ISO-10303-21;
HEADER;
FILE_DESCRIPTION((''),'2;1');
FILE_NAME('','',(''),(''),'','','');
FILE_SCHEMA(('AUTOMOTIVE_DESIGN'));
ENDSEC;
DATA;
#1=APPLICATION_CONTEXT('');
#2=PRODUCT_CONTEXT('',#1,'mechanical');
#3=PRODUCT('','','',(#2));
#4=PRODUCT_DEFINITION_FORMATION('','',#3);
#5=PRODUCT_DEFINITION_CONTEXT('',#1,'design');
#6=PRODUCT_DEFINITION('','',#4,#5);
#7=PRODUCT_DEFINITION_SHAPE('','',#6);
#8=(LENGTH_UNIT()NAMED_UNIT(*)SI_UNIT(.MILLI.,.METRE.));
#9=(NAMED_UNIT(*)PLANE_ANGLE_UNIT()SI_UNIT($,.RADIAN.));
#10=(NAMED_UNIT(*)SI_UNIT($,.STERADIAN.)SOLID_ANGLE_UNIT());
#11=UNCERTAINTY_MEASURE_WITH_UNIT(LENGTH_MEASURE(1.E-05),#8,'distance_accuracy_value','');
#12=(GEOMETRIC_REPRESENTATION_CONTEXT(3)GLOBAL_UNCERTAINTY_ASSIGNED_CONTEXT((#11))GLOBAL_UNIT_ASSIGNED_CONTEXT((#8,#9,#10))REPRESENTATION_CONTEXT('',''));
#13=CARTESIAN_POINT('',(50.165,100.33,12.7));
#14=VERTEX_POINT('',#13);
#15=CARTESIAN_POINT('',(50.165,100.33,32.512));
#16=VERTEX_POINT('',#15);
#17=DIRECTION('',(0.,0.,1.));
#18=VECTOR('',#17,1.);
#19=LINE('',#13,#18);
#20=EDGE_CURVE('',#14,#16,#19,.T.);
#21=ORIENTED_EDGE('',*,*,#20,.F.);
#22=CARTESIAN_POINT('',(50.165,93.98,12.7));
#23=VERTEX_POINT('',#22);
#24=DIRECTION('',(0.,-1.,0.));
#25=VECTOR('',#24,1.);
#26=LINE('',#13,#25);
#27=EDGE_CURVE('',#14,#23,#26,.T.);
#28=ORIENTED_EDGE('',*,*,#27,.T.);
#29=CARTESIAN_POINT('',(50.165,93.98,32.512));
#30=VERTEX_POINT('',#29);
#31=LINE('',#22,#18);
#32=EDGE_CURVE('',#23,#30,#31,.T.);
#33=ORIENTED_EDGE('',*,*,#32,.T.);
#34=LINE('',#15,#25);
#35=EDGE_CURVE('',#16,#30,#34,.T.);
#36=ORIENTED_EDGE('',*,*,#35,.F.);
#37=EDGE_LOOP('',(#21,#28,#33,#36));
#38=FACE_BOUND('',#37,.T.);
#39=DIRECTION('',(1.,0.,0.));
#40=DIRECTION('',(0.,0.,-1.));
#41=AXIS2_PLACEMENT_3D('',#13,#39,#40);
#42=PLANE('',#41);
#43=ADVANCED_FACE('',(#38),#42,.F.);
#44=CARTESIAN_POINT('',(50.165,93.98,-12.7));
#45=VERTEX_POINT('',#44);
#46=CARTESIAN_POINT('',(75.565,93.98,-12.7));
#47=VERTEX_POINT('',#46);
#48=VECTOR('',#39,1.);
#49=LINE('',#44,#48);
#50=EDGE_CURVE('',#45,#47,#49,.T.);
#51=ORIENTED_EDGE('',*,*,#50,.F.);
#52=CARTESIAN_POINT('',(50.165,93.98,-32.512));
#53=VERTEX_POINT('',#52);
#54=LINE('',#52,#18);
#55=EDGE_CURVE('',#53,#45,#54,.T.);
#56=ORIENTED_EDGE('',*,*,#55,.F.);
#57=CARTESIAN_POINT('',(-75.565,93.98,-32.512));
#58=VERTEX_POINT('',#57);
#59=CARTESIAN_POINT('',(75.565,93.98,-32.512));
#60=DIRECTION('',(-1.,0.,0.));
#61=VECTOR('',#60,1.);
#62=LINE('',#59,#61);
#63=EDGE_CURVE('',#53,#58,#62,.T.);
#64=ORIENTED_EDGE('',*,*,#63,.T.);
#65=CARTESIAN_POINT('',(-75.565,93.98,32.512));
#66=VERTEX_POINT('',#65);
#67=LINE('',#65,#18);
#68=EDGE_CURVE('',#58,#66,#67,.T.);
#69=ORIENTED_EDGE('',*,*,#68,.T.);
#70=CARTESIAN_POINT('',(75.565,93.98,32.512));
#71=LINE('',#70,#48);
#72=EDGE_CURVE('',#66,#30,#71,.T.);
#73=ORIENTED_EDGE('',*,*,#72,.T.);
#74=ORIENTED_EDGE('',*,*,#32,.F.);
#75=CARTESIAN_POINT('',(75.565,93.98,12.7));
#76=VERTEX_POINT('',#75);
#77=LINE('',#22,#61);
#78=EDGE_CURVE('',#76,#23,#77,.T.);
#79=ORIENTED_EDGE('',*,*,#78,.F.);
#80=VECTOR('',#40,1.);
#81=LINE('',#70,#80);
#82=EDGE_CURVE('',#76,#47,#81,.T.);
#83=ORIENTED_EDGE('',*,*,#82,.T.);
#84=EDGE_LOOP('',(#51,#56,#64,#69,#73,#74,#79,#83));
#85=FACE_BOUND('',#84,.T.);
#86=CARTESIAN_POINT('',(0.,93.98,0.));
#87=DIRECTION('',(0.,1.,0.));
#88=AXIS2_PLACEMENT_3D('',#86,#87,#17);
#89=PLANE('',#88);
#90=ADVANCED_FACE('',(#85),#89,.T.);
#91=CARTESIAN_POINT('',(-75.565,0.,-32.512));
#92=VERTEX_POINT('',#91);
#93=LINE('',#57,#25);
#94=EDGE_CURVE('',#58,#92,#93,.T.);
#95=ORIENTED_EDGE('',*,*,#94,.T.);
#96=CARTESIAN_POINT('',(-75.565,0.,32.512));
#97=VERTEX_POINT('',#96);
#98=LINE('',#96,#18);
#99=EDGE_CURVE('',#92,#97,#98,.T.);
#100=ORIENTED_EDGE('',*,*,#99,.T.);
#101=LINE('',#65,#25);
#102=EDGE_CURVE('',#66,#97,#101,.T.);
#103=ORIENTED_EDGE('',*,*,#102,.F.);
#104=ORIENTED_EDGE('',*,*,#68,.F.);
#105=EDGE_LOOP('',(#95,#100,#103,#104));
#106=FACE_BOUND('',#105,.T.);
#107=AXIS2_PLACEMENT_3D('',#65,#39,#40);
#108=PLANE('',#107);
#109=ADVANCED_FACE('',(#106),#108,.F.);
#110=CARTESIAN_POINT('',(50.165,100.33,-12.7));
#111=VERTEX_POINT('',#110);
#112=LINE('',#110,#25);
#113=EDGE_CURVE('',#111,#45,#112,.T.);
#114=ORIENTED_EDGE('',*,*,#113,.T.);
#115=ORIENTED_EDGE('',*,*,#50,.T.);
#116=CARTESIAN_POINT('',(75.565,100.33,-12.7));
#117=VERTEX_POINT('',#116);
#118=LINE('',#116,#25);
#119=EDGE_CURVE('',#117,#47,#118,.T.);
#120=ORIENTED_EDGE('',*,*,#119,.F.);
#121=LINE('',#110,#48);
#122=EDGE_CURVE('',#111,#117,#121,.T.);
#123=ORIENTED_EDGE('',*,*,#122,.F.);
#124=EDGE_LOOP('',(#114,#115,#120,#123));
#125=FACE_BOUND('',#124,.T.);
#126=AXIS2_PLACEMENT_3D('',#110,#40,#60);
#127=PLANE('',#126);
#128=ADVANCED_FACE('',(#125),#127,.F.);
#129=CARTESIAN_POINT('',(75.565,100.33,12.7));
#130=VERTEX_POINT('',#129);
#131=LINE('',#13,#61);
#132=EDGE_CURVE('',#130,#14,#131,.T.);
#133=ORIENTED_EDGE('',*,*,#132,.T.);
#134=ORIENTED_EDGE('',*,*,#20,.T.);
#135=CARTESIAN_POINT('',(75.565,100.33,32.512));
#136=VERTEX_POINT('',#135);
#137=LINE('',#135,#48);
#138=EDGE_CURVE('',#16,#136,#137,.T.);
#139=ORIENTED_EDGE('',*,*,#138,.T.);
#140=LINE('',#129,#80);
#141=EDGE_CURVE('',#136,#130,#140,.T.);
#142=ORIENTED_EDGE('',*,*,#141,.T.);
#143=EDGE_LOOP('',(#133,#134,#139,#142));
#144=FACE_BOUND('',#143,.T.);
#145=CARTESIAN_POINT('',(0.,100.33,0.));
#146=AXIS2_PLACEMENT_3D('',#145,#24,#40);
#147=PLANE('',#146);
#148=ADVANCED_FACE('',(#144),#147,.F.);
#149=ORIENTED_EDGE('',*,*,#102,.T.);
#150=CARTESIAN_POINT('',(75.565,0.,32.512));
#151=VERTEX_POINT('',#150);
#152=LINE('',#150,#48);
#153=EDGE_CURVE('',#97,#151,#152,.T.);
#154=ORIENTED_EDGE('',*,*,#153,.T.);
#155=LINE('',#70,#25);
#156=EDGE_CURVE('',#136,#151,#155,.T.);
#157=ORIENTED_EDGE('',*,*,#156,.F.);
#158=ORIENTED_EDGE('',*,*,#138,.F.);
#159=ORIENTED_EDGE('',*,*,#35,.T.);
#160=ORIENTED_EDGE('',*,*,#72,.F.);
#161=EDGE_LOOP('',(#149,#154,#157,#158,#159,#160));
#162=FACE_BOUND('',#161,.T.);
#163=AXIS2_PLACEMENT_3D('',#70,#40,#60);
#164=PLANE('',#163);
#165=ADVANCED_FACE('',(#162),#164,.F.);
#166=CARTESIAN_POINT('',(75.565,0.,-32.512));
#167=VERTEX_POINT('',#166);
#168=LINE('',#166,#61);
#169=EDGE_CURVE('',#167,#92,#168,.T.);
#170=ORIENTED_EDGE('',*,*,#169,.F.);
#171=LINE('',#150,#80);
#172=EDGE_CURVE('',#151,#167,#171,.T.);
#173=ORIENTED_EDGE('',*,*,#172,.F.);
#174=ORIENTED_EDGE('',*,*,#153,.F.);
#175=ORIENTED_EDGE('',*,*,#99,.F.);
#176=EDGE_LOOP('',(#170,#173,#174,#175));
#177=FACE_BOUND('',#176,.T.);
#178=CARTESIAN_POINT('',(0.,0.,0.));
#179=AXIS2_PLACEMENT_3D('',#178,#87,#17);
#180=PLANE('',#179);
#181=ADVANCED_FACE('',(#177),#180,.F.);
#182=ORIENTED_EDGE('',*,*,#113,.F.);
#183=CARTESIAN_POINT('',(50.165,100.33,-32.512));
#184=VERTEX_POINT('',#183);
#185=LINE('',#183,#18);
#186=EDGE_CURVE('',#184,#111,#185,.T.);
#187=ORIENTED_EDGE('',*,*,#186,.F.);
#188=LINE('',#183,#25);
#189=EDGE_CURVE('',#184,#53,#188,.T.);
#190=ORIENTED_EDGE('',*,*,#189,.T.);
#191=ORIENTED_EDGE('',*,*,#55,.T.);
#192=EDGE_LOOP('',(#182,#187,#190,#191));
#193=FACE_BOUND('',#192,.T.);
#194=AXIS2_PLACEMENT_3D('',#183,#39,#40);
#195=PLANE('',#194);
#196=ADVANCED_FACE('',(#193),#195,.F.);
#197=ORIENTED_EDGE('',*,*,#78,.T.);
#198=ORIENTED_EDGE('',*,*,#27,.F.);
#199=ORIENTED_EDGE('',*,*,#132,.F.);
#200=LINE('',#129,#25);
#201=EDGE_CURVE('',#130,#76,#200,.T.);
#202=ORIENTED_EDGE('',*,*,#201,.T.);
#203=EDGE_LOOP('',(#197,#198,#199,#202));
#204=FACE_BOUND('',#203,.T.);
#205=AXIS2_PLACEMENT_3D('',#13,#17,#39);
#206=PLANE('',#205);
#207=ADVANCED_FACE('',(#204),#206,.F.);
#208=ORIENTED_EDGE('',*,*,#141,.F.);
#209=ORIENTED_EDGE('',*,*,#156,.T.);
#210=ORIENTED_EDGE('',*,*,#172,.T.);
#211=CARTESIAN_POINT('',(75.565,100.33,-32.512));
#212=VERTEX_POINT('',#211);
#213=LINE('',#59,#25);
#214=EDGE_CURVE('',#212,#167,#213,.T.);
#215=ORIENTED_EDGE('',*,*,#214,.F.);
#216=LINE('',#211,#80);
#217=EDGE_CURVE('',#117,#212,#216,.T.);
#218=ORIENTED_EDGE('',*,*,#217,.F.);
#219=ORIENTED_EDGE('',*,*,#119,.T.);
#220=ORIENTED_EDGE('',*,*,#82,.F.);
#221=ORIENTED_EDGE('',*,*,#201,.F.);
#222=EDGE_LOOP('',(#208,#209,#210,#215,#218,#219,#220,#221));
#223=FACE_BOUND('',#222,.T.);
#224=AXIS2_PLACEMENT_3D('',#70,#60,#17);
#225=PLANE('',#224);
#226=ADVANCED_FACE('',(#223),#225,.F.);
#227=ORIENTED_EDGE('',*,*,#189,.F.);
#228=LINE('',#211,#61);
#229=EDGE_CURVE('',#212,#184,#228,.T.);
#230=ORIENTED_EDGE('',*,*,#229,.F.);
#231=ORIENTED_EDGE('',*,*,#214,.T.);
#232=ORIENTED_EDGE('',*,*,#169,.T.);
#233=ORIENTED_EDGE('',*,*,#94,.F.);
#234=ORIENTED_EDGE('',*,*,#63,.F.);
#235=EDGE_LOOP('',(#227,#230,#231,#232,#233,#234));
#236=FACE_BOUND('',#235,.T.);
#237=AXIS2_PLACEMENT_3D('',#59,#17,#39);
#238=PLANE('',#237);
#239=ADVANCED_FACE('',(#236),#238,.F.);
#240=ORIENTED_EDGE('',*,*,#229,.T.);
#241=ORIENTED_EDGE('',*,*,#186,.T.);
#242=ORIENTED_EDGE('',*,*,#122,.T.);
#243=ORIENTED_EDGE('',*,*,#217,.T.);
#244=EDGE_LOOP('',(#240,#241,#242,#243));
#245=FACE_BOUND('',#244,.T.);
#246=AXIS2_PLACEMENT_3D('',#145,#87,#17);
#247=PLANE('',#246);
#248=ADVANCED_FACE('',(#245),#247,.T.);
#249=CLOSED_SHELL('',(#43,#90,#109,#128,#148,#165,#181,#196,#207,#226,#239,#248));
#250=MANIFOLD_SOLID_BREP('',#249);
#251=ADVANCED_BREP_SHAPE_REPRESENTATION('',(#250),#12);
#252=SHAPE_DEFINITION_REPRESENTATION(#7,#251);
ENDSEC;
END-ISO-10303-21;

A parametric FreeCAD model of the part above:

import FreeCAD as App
import Part
import Sketcher
from FreeCAD import Vector
Q = App.Units.Quantity


def add_polygon(sketch, points):
    """Adds a closed chain of lines whose ends are joined by coincident constraints."""
    first, n = sketch.GeometryCount, len(points)
    for a, b in zip(points, points[1:] + points[:1]):
        sketch.addGeometry(Part.LineSegment(App.Vector(*a, 0), App.Vector(*b, 0)), False)
    for i in range(n):
        sketch.addConstraint(Sketcher.Constraint("Coincident", first + i, 2, first + (i + 1) % n, 1))

doc = App.newDocument("Part")
body = doc.addObject("PartDesign::Body", "Body")

# Sketch on XZ plane
sketch1 = body.newObject("Sketcher::SketchObject", "Sketch")
sketch1.AttachmentSupport = (doc.getObject("XZ_Plane"), [""])
sketch1.MapMode = "FlatFace"
add_polygon(sketch1, [(-76, -33), (-76, 33), (76, 33), (76, -33)])  # lines 0-3
sketch1.addConstraint(Sketcher.Constraint("Vertical", 0))
sketch1.addConstraint(Sketcher.Constraint("Horizontal", 1))
sketch1.addConstraint(Sketcher.Constraint("Vertical", 2))
sketch1.addConstraint(Sketcher.Constraint("Horizontal", 3))
sketch1.addConstraint(Sketcher.Constraint("Symmetric", 0, 2, 2, 2, -1, 1))
sketch1.addConstraint(Sketcher.Constraint("DistanceX", 1, 1, 1, 2, Q("5.95 in")))
sketch1.addConstraint(Sketcher.Constraint("DistanceY", 0, 1, 0, 2, Q("2.56 in")))
pad1 = body.newObject("PartDesign::Pad", "Pad")
pad1.Profile = sketch1
pad1.Length = Q("3.7 in")
pad1.Reversed = True

# Sketch on XZ plane
sketch2 = body.newObject("Sketcher::SketchObject", "Sketch001")
sketch2.AttachmentSupport = (doc.getObject("XZ_Plane"), [""])
sketch2.MapMode = "FlatFace"
sketch2.AttachmentOffset = App.Placement(Vector(0, 0, -3.7 * 25.4), App.Rotation())
add_polygon(sketch2, [(50, -33), (50, -13), (76, -13), (76, -33)])  # lines 0-3
add_polygon(sketch2, [(50, 13), (50, 33), (76, 33), (76, 13)])  # lines 4-7
sketch2.addConstraint(Sketcher.Constraint("Vertical", 0))
sketch2.addConstraint(Sketcher.Constraint("Horizontal", 1))
sketch2.addConstraint(Sketcher.Constraint("Vertical", 2))
sketch2.addConstraint(Sketcher.Constraint("Horizontal", 3))
sketch2.addConstraint(Sketcher.Constraint("Vertical", 4))
sketch2.addConstraint(Sketcher.Constraint("Horizontal", 5))
sketch2.addConstraint(Sketcher.Constraint("Vertical", 6))
sketch2.addConstraint(Sketcher.Constraint("Horizontal", 7))
sketch2.addConstraint(Sketcher.Constraint("Symmetric", 3, 2, 4, 2, -1))
sketch2.addConstraint(Sketcher.Constraint("Symmetric", 1, 2, 6, 2, -1))
sketch2.addConstraint(Sketcher.Constraint("DistanceX", 1, 1, 1, 2, Q("1 in")))
sketch2.addConstraint(Sketcher.Constraint("DistanceY", 1, 2, 6, 2, Q("1 in")))
sketch2.addConstraint(Sketcher.Constraint("DistanceY", 0, 1, 0, 2, Q("0.78 in")))
sketch2.addConstraint(Sketcher.Constraint("DistanceX", -1, 1, 0, 2, Q("1.975 in")))
pad2 = body.newObject("PartDesign::Pad", "Pad001")
pad2.Profile = sketch2
pad2.Length = Q("0.25 in")
pad2.Reversed = True

doc.recompute()
